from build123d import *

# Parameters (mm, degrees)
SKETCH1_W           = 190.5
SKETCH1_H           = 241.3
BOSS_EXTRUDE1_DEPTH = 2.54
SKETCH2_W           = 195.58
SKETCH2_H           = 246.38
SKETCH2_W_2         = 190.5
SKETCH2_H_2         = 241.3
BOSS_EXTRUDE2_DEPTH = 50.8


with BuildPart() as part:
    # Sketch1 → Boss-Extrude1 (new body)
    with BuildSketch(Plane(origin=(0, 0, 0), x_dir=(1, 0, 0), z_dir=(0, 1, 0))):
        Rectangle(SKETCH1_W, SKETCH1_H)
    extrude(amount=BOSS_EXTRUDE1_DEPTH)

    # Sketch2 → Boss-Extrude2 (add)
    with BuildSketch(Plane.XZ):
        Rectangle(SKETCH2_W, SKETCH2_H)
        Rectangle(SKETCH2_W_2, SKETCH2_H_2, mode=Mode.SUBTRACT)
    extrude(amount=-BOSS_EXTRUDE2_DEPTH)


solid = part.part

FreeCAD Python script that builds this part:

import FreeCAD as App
import Part
import Sketcher

V = App.Vector
Q = App.Units.Quantity

doc = App.newDocument("Part")
body = doc.addObject("PartDesign::Body", "Body")

# Sketch on XZ plane
sketch1 = body.newObject("Sketcher::SketchObject", "Sketch")
sketch1.AttachmentSupport = (doc.getObject("XZ_Plane"), [""])
sketch1.MapMode = "FlatFace"
sketch1.addGeometry(Part.LineSegment(V(-95, -121, 0), V(-95, 121, 0)), False)
sketch1.addGeometry(Part.LineSegment(V(-95, 121, 0), V(95, 121, 0)), False)
sketch1.addGeometry(Part.LineSegment(V(95, 121, 0), V(95, -121, 0)), False)
sketch1.addGeometry(Part.LineSegment(V(95, -121, 0), V(-95, -121, 0)), False)
sketch1.addConstraint(Sketcher.Constraint("Coincident", 0, 2, 1, 1))
sketch1.addConstraint(Sketcher.Constraint("Coincident", 1, 2, 2, 1))
sketch1.addConstraint(Sketcher.Constraint("Coincident", 2, 2, 3, 1))
sketch1.addConstraint(Sketcher.Constraint("Coincident", 3, 2, 0, 1))
sketch1.addConstraint(Sketcher.Constraint("Vertical", 0))
sketch1.addConstraint(Sketcher.Constraint("Horizontal", 1))
sketch1.addConstraint(Sketcher.Constraint("Vertical", 2))
sketch1.addConstraint(Sketcher.Constraint("Horizontal", 3))
sketch1.addConstraint(Sketcher.Constraint("Symmetric", 0, 2, 2, 2, -1, 1))
sketch1.addConstraint(Sketcher.Constraint("DistanceX", 1, 1, 1, 2, Q("7.5 in")))
sketch1.addConstraint(Sketcher.Constraint("DistanceY", 0, 1, 0, 2, Q("9.5 in")))
pad1 = body.newObject("PartDesign::Pad", "Pad")
pad1.Profile = sketch1
pad1.Length = Q("0.1 in")
pad1.Reversed = True

# Sketch on XZ plane
sketch2 = body.newObject("Sketcher::SketchObject", "Sketch001")
sketch2.AttachmentSupport = (doc.getObject("XZ_Plane"), [""])
sketch2.MapMode = "FlatFace"
sketch2.addGeometry(Part.LineSegment(V(-98, 123, 0), V(-98, -123, 0)), False)
sketch2.addGeometry(Part.LineSegment(V(-98, -123, 0), V(98, -123, 0)), False)
sketch2.addGeometry(Part.LineSegment(V(98, -123, 0), V(98, 123, 0)), False)
sketch2.addGeometry(Part.LineSegment(V(98, 123, 0), V(-98, 123, 0)), False)
sketch2.addGeometry(Part.LineSegment(V(95, -121, 0), V(-95, -121, 0)), False)
sketch2.addGeometry(Part.LineSegment(V(-95, -121, 0), V(-95, 121, 0)), False)
sketch2.addGeometry(Part.LineSegment(V(-95, 121, 0), V(95, 121, 0)), False)
sketch2.addGeometry(Part.LineSegment(V(95, 121, 0), V(95, -121, 0)), False)
sketch2.addConstraint(Sketcher.Constraint("Coincident", 0, 2, 1, 1))
sketch2.addConstraint(Sketcher.Constraint("Coincident", 1, 2, 2, 1))
sketch2.addConstraint(Sketcher.Constraint("Coincident", 2, 2, 3, 1))
sketch2.addConstraint(Sketcher.Constraint("Coincident", 3, 2, 0, 1))
sketch2.addConstraint(Sketcher.Constraint("Coincident", 4, 2, 5, 1))
sketch2.addConstraint(Sketcher.Constraint("Coincident", 5, 2, 6, 1))
sketch2.addConstraint(Sketcher.Constraint("Coincident", 6, 2, 7, 1))
sketch2.addConstraint(Sketcher.Constraint("Coincident", 7, 2, 4, 1))
sketch2.addConstraint(Sketcher.Constraint("Vertical", 0))
sketch2.addConstraint(Sketcher.Constraint("Horizontal", 1))
sketch2.addConstraint(Sketcher.Constraint("Vertical", 2))
sketch2.addConstraint(Sketcher.Constraint("Horizontal", 3))
sketch2.addConstraint(Sketcher.Constraint("Horizontal", 4))
sketch2.addConstraint(Sketcher.Constraint("Vertical", 5))
sketch2.addConstraint(Sketcher.Constraint("Horizontal", 6))
sketch2.addConstraint(Sketcher.Constraint("Vertical", 7))
sketch2.addConstraint(Sketcher.Constraint("Symmetric", 0, 2, 2, 2, -1, 1))
sketch2.addConstraint(Sketcher.Constraint("Symmetric", 4, 2, 6, 2, -1, 1))
sketch2.addConstraint(Sketcher.Constraint("DistanceX", 1, 1, 1, 2, Q("7.7 in")))
sketch2.addConstraint(Sketcher.Constraint("DistanceX", 4, 2, 4, 1, Q("7.5 in")))
sketch2.addConstraint(Sketcher.Constraint("DistanceY", 0, 2, 0, 1, Q("9.7 in")))
sketch2.addConstraint(Sketcher.Constraint("DistanceY", 5, 1, 5, 2, Q("9.5 in")))
pad2 = body.newObject("PartDesign::Pad", "Pad001")
pad2.Profile = sketch2
pad2.Length = Q("2 in")
pad2.Reversed = True

doc.recompute()
